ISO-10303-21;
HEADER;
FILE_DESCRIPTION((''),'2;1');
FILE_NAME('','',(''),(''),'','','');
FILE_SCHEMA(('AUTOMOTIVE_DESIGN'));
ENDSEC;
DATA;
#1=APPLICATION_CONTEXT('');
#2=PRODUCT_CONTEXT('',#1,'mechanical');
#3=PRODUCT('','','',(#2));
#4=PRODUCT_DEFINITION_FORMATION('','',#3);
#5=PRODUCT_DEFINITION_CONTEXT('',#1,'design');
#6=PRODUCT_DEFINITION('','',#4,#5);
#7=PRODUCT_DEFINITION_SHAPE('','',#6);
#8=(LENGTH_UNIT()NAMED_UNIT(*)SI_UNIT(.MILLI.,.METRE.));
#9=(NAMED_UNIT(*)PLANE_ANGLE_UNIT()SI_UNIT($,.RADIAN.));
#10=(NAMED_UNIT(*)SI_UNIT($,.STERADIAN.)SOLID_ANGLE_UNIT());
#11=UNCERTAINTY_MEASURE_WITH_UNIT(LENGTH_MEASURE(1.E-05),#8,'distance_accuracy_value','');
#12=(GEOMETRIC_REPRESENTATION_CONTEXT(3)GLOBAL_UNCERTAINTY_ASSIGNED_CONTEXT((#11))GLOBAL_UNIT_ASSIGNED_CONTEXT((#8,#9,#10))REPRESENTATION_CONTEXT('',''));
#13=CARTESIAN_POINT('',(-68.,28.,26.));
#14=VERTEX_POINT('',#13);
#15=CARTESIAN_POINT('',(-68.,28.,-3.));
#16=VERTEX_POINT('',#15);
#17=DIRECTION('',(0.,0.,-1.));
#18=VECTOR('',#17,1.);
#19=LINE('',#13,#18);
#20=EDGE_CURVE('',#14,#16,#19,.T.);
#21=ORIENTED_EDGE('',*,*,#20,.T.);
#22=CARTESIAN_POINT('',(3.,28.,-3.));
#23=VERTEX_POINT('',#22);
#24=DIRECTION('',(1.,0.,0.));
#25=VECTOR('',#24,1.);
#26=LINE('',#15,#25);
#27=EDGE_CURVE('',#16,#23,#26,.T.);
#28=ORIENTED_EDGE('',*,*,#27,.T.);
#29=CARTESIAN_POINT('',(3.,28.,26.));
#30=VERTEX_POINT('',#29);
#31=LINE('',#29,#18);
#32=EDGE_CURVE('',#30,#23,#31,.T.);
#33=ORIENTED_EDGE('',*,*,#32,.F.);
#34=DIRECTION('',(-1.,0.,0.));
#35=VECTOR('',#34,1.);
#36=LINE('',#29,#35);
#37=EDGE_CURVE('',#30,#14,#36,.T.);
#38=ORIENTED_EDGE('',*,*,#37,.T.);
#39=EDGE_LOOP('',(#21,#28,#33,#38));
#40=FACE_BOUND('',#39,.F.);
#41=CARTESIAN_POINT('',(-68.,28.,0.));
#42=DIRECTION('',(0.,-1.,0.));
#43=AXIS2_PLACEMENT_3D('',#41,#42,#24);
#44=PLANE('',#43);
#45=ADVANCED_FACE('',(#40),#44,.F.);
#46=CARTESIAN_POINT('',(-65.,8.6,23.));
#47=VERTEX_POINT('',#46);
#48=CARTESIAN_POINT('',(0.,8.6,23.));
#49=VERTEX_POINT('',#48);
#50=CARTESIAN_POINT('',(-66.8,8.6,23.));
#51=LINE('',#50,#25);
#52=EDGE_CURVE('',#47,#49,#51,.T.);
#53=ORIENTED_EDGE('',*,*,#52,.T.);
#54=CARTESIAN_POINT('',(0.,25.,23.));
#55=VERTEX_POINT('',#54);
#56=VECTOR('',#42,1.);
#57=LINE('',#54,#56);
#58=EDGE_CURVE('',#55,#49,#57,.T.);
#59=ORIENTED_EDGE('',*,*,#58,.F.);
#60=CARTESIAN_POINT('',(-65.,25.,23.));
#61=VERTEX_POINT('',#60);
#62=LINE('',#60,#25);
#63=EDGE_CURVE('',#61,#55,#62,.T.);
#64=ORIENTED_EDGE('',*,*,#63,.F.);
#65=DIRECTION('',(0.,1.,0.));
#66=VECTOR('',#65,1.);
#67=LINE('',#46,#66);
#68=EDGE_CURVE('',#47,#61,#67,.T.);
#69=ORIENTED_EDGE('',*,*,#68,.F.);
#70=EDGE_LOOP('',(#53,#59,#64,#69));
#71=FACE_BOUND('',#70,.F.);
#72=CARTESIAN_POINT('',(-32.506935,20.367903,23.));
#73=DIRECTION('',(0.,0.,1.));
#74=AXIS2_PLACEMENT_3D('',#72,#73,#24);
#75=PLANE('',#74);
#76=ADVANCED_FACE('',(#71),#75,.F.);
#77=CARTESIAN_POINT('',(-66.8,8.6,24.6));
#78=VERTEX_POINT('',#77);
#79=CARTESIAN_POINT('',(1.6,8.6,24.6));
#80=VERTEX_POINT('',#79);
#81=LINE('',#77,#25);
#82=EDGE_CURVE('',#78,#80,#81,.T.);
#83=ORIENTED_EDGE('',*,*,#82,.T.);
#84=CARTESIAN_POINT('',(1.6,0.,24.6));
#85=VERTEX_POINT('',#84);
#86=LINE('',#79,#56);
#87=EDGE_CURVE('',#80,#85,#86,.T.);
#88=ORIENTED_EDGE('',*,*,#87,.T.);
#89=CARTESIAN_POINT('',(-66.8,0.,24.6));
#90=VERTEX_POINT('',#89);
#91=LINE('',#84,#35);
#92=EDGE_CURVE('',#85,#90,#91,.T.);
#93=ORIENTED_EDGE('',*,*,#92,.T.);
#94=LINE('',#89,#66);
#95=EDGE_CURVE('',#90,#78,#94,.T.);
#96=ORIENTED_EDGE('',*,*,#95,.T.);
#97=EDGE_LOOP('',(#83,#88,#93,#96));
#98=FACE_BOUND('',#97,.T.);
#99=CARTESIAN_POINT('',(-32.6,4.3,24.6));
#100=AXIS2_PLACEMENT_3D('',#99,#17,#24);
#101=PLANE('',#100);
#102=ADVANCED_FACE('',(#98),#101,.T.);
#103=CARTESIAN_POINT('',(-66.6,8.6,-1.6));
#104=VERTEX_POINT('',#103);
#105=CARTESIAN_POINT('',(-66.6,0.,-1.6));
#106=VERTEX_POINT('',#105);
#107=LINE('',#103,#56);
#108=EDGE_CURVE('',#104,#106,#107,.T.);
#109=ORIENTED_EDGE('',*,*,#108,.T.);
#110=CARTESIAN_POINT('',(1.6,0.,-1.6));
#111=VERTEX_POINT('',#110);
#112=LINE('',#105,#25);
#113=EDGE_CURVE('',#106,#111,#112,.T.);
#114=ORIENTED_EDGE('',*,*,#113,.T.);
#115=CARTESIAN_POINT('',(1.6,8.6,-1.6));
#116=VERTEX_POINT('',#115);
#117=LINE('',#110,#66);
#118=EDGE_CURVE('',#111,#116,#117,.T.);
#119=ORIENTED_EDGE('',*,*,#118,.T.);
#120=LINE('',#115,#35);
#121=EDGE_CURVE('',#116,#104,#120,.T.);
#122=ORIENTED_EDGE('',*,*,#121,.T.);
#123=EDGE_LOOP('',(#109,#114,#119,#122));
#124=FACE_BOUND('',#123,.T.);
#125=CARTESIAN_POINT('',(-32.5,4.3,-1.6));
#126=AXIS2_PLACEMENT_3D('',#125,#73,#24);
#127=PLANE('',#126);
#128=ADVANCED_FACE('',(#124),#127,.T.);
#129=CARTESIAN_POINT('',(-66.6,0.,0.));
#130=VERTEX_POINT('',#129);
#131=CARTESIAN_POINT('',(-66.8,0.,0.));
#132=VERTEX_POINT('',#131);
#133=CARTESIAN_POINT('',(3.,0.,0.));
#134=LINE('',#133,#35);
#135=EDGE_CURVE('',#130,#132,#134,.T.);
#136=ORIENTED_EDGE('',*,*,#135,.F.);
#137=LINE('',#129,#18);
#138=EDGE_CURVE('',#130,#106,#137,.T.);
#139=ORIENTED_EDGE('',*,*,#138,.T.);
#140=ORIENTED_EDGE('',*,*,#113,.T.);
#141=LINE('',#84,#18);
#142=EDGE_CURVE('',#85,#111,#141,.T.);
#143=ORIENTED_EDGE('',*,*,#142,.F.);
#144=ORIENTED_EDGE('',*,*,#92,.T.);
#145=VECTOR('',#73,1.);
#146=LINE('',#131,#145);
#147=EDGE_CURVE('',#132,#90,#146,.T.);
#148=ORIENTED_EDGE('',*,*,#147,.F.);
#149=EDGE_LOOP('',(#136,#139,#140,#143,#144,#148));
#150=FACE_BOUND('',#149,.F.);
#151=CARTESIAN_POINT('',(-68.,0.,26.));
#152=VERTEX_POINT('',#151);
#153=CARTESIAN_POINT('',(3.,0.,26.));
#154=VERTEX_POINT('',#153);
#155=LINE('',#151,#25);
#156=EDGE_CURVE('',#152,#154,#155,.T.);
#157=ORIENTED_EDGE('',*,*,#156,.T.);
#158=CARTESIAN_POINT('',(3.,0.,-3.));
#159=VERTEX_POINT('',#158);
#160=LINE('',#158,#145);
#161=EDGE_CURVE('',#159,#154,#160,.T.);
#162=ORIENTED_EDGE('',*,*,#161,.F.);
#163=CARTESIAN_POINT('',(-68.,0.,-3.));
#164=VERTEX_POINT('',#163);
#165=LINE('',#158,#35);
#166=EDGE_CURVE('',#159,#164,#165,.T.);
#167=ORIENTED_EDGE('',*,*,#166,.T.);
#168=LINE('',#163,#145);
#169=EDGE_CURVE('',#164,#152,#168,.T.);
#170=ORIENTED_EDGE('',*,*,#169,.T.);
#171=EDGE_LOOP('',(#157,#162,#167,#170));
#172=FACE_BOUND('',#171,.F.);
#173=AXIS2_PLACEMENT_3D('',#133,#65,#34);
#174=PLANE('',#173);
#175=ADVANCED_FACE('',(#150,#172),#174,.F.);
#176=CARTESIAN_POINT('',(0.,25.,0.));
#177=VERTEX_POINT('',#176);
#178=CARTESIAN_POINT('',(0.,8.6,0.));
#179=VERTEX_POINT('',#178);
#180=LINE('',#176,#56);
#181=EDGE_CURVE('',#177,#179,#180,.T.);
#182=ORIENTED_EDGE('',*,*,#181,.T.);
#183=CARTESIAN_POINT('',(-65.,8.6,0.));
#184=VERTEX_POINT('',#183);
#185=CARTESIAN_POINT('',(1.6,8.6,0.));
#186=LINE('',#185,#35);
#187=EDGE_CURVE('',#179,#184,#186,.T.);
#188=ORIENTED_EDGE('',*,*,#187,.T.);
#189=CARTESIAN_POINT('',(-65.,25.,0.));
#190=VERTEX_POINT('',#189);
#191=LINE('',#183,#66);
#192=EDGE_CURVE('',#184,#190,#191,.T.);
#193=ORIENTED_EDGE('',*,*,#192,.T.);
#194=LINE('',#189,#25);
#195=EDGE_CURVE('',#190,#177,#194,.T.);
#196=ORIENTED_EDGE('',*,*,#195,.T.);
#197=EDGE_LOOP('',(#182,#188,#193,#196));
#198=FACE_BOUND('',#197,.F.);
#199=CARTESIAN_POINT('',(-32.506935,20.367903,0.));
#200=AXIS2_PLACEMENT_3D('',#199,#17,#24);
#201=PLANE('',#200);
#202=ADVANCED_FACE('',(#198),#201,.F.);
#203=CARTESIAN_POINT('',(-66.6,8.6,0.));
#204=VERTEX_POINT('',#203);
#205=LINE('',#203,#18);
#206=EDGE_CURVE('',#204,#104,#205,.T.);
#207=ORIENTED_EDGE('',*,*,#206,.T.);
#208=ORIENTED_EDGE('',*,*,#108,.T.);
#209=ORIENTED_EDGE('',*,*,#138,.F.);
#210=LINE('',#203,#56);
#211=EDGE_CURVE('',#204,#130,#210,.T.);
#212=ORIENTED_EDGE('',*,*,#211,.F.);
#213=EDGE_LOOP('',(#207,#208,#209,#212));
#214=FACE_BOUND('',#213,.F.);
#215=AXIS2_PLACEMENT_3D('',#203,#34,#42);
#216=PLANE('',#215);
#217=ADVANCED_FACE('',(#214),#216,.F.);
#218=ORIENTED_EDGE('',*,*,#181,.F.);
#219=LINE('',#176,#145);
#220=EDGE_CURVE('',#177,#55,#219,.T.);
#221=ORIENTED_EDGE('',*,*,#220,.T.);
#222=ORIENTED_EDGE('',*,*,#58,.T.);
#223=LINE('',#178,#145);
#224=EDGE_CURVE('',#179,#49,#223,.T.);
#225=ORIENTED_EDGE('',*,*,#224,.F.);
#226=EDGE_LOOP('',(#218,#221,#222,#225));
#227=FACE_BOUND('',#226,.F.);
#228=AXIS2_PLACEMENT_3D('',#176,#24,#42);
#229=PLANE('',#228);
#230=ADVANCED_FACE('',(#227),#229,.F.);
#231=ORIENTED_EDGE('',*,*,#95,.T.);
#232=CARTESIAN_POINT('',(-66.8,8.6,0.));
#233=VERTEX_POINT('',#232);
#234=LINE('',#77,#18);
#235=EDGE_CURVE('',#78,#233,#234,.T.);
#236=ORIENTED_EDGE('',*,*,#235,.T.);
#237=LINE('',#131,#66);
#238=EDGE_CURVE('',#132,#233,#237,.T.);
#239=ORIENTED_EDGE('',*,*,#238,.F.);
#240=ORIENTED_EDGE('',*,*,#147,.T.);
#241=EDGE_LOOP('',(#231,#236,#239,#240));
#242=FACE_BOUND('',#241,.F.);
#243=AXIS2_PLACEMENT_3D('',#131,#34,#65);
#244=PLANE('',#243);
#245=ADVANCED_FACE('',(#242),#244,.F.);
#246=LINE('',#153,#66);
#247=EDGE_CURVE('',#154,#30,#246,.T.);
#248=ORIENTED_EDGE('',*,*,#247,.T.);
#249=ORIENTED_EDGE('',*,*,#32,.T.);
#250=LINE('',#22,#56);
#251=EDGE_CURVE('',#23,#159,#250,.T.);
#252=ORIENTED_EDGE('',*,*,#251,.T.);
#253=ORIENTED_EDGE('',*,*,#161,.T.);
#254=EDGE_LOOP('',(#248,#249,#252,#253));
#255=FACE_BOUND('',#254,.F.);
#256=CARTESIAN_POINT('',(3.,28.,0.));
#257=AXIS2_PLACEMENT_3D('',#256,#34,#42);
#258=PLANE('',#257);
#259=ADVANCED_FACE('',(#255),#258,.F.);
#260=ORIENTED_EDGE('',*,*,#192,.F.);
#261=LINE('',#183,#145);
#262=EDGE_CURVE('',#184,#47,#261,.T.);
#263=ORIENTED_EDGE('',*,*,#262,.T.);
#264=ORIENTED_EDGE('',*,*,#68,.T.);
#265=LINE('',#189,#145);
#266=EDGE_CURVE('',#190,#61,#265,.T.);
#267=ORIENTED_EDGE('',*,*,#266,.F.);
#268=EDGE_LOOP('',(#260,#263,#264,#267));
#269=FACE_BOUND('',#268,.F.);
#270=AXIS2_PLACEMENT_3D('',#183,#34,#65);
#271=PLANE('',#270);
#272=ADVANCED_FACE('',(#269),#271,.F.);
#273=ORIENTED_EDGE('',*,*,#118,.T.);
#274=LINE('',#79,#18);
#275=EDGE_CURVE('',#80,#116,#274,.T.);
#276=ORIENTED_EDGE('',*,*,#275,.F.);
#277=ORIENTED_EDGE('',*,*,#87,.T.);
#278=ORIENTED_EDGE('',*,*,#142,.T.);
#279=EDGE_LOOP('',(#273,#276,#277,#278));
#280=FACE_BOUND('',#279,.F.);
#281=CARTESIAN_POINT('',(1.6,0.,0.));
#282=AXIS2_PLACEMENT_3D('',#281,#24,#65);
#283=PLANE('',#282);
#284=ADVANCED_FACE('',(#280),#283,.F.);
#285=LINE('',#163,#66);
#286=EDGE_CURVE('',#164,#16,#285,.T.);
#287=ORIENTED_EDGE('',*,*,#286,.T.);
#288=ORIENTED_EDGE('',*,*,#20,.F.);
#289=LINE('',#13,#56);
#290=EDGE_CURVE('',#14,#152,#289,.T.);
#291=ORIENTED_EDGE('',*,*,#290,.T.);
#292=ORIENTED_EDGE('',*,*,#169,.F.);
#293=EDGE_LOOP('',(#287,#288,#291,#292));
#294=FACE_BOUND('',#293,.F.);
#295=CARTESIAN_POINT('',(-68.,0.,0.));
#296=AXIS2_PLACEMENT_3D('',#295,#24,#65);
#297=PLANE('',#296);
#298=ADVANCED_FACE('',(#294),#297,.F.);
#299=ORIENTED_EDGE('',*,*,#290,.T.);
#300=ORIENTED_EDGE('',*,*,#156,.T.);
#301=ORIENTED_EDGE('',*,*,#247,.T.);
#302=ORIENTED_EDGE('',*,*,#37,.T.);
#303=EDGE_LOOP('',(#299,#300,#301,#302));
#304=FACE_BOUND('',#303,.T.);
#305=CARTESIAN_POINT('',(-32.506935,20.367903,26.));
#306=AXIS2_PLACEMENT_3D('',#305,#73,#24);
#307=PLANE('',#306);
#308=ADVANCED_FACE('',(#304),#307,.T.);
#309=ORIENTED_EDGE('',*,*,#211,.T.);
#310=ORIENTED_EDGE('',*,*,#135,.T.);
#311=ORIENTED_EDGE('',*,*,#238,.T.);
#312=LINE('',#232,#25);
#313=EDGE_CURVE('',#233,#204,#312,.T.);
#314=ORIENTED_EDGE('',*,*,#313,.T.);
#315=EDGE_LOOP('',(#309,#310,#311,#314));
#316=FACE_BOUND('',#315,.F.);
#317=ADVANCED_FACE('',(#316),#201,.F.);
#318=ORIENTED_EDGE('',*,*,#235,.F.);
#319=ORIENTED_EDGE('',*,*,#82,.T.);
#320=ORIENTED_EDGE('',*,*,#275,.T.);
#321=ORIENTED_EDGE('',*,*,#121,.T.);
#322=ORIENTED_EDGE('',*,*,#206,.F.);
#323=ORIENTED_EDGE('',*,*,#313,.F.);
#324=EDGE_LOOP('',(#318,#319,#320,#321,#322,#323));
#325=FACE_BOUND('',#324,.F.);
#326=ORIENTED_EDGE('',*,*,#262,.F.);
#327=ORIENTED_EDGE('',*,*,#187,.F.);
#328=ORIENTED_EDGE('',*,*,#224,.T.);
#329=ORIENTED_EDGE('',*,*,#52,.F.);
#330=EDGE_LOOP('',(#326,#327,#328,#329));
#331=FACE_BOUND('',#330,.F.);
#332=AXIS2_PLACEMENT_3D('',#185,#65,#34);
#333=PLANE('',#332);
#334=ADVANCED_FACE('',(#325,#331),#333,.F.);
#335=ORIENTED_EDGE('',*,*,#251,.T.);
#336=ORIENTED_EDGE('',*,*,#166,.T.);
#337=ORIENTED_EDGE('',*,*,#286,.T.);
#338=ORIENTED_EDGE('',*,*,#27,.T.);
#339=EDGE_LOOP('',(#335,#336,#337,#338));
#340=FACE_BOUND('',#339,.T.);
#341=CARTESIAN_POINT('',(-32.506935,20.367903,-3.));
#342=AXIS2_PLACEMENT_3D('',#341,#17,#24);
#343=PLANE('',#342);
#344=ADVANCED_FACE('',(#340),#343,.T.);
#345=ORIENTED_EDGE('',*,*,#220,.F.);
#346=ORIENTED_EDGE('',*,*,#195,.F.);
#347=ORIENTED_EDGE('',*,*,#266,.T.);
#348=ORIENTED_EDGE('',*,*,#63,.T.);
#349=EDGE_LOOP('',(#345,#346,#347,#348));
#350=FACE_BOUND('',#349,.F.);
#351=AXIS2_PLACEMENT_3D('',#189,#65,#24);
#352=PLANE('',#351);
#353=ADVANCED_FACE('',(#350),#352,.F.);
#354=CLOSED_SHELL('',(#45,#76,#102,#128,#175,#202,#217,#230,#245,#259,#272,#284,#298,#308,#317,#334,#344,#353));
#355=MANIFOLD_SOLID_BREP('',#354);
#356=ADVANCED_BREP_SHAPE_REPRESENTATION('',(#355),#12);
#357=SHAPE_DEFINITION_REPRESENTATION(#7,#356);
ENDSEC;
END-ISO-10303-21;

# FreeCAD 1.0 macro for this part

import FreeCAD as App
import Part
import Sketcher

V = App.Vector
Q = App.Units.Quantity


def add_polygon(sketch, points):
    """Adds a closed chain of lines whose ends are joined by coincident constraints."""
    first, n = sketch.GeometryCount, len(points)
    for a, b in zip(points, points[1:] + points[:1]):
        sketch.addGeometry(Part.LineSegment(App.Vector(*a, 0), App.Vector(*b, 0)), False)
    for i in range(n):
        sketch.addConstraint(Sketcher.Constraint("Coincident", first + i, 2, first + (i + 1) % n, 1))

doc = App.newDocument("Part")
body = doc.addObject("PartDesign::Body", "Body")

sketch1 = body.newObject("Sketcher::SketchObject", "Sketch")
sketch1.AttachmentSupport = (doc.getObject("XY_Plane"), [""])
sketch1.MapMode = "FlatFace"
add_polygon(sketch1, [(-65, 25), (0, 25), (0, 8.6), (1.6, 8.6), (1.6, 0), (3, 0), (3, 28), (-68, 28), (-68, 0), (-66.8, 0), (-66.8, 8.6), (-65, 8.6)])
sketch1.addConstraint(Sketcher.Constraint("Horizontal", 0))
sketch1.addConstraint(Sketcher.Constraint("Vertical", 1))
sketch1.addConstraint(Sketcher.Constraint("Horizontal", 2))
sketch1.addConstraint(Sketcher.Constraint("Vertical", 3))
sketch1.addConstraint(Sketcher.Constraint("Horizontal", 4))
sketch1.addConstraint(Sketcher.Constraint("Vertical", 5))
sketch1.addConstraint(Sketcher.Constraint("Horizontal", 6))
sketch1.addConstraint(Sketcher.Constraint("Vertical", 7))
sketch1.addConstraint(Sketcher.Constraint("Horizontal", 8))
sketch1.addConstraint(Sketcher.Constraint("Vertical", 9))
sketch1.addConstraint(Sketcher.Constraint("Horizontal", 10))
sketch1.addConstraint(Sketcher.Constraint("Vertical", 11))
sketch1.addConstraint(Sketcher.Constraint("PointOnObject", 0, 2, -2))
sketch1.addConstraint(Sketcher.Constraint("PointOnObject", 3, 2, -1))
sketch1.addConstraint(Sketcher.Constraint("PointOnObject", 7, 2, -1))
sketch1.addConstraint(Sketcher.Constraint("Horizontal", 2, 2, 9, 2))
sketch1.addConstraint(Sketcher.Constraint("DistanceX", 0, 1, 0, 2, Q("65 mm")))
sketch1.addConstraint(Sketcher.Constraint("DistanceX", 6, 2, 6, 1, Q("71 mm")))
sketch1.addConstraint(Sketcher.Constraint("DistanceY", 5, 1, 5, 2, Q("28 mm")))
sketch1.addConstraint(Sketcher.Constraint("DistanceX", 2, 1, 2, 2, Q("1.6 mm")))
sketch1.addConstraint(Sketcher.Constraint("DistanceX", 4, 1, 4, 2, Q("1.4 mm")))
sketch1.addConstraint(Sketcher.Constraint("DistanceX", 8, 1, 8, 2, Q("1.2 mm")))
sketch1.addConstraint(Sketcher.Constraint("DistanceY", 1, 2, 1, 1, Q("16.4 mm")))
sketch1.addConstraint(Sketcher.Constraint("DistanceY", 3, 2, 3, 1, Q("8.6 mm")))
pad1 = body.newObject("PartDesign::Pad", "Pad")
pad1.Profile = sketch1
pad1.Length = 23

sketch2 = body.newObject("Sketcher::SketchObject", "Sketch001")
sketch2.AttachmentSupport = (doc.getObject("XY_Plane"), [""])
sketch2.MapMode = "FlatFace"
sketch2.AttachmentOffset = App.Placement(V(0, 0, 23), App.Rotation())
add_polygon(sketch2, [(3, 28), (-68, 28), (-68, 0), (3, 0)])
sketch2.addConstraint(Sketcher.Constraint("Horizontal", 0))
sketch2.addConstraint(Sketcher.Constraint("Vertical", 1))
sketch2.addConstraint(Sketcher.Constraint("Horizontal", 2))
sketch2.addConstraint(Sketcher.Constraint("Vertical", 3))
sketch2.addConstraint(Sketcher.Constraint("PointOnObject", 1, 2, -1))
sketch2.addConstraint(Sketcher.Constraint("DistanceX", 0, 2, 0, 1, Q("71 mm")))
sketch2.addConstraint(Sketcher.Constraint("DistanceY", 1, 2, 1, 1, Q("28 mm")))
sketch2.addConstraint(Sketcher.Constraint("DistanceX", 0, 2, -1, 1, Q("68 mm")))
pad2 = body.newObject("PartDesign::Pad", "Pad001")
pad2.Profile = sketch2
pad2.Length = 3

sketch3 = body.newObject("Sketcher::SketchObject", "Sketch002")
sketch3.AttachmentSupport = (doc.getObject("XY_Plane"), [""])
sketch3.MapMode = "FlatFace"
sketch3.AttachmentOffset = App.Placement(V(0, 0, 23), App.Rotation())
add_polygon(sketch3, [(1.6, 0), (-66.8, 0), (-66.8, 8.6), (1.6, 8.6)])
sketch3.addConstraint(Sketcher.Constraint("Horizontal", 0))
sketch3.addConstraint(Sketcher.Constraint("Vertical", 1))
sketch3.addConstraint(Sketcher.Constraint("Horizontal", 2))
sketch3.addConstraint(Sketcher.Constraint("Vertical", 3))
sketch3.addConstraint(Sketcher.Constraint("PointOnObject", 0, 2, -1))
sketch3.addConstraint(Sketcher.Constraint("DistanceX", 0, 2, 0, 1, Q("68.4 mm")))
sketch3.addConstraint(Sketcher.Constraint("DistanceY", 1, 1, 1, 2, Q("8.6 mm")))
sketch3.addConstraint(Sketcher.Constraint("DistanceX", 0, 2, -1, 1, Q("66.8 mm")))
pocket1 = body.newObject("PartDesign::Pocket", "Pocket")
pocket1.Profile = sketch3
pocket1.Length = 1.6
pocket1.Reversed = True

sketch4 = body.newObject("Sketcher::SketchObject", "Sketch003")
sketch4.AttachmentSupport = (doc.getObject("XY_Plane"), [""])
sketch4.MapMode = "FlatFace"
add_polygon(sketch4, [(-68, 0), (-68, 28), (3, 28), (3, 0)])
sketch4.addConstraint(Sketcher.Constraint("Vertical", 0))
sketch4.addConstraint(Sketcher.Constraint("Horizontal", 1))
sketch4.addConstraint(Sketcher.Constraint("Vertical", 2))
sketch4.addConstraint(Sketcher.Constraint("Horizontal", 3))
sketch4.addConstraint(Sketcher.Constraint("PointOnObject", 2, 2, -1))
sketch4.addConstraint(Sketcher.Constraint("DistanceX", 1, 1, 1, 2, Q("71 mm")))
sketch4.addConstraint(Sketcher.Constraint("DistanceY", 0, 1, 0, 2, Q("28 mm")))
sketch4.addConstraint(Sketcher.Constraint("DistanceX", 0, 2, -1, 1, Q("68 mm")))
pad3 = body.newObject("PartDesign::Pad", "Pad002")
pad3.Profile = sketch4
pad3.Length = 3
pad3.Reversed = True

sketch5 = body.newObject("Sketcher::SketchObject", "Sketch004")
sketch5.AttachmentSupport = (doc.getObject("XY_Plane"), [""])
sketch5.MapMode = "FlatFace"
add_polygon(sketch5, [(-66.6, 8.6), (-66.6, 0), (1.6, 0), (1.6, 8.6)])
sketch5.addConstraint(Sketcher.Constraint("Vertical", 0))
sketch5.addConstraint(Sketcher.Constraint("Horizontal", 1))
sketch5.addConstraint(Sketcher.Constraint("Vertical", 2))
sketch5.addConstraint(Sketcher.Constraint("Horizontal", 3))
sketch5.addConstraint(Sketcher.Constraint("PointOnObject", 0, 2, -1))
sketch5.addConstraint(Sketcher.Constraint("DistanceX", 1, 1, 1, 2, Q("68.2 mm")))
sketch5.addConstraint(Sketcher.Constraint("DistanceY", 0, 2, 0, 1, Q("8.6 mm")))
sketch5.addConstraint(Sketcher.Constraint("DistanceX", 0, 2, -1, 1, Q("66.6 mm")))
pocket2 = body.newObject("PartDesign::Pocket", "Pocket001")
pocket2.Profile = sketch5
pocket2.Length = 1.6

doc.recompute()
